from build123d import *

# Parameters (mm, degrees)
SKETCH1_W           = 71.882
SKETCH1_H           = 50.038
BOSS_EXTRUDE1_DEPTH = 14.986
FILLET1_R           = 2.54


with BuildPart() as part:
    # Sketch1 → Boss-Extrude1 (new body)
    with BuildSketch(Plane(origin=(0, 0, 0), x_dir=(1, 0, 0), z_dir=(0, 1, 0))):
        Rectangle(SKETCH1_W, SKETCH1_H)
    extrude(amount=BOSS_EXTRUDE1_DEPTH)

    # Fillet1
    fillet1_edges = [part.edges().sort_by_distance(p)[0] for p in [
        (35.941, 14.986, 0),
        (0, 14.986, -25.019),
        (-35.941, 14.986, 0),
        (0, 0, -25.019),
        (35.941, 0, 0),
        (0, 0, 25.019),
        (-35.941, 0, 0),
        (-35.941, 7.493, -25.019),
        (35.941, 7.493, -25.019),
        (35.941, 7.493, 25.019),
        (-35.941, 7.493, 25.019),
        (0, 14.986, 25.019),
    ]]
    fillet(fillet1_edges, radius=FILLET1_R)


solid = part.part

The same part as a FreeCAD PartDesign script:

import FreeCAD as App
import Part
import Sketcher
from FreeCAD import Vector
Q = App.Units.Quantity

doc = App.newDocument("Part")
body = doc.addObject("PartDesign::Body", "Body")

# Sketch on XZ plane
sketch1 = body.newObject("Sketcher::SketchObject", "Sketch")
sketch1.AttachmentSupport = (doc.getObject("XZ_Plane"), [""])
sketch1.MapMode = "FlatFace"
sketch1.addGeometry(Part.LineSegment(Vector(-36, -25, 0), Vector(-36, 25, 0)), False)
sketch1.addGeometry(Part.LineSegment(Vector(-36, 25, 0), Vector(36, 25, 0)), False)
sketch1.addGeometry(Part.LineSegment(Vector(36, 25, 0), Vector(36, -25, 0)), False)
sketch1.addGeometry(Part.LineSegment(Vector(36, -25, 0), Vector(-36, -25, 0)), False)
sketch1.addConstraint(Sketcher.Constraint("Coincident", 0, 2, 1, 1))
sketch1.addConstraint(Sketcher.Constraint("Coincident", 1, 2, 2, 1))
sketch1.addConstraint(Sketcher.Constraint("Coincident", 2, 2, 3, 1))
sketch1.addConstraint(Sketcher.Constraint("Coincident", 3, 2, 0, 1))
sketch1.addConstraint(Sketcher.Constraint("Vertical", 0))
sketch1.addConstraint(Sketcher.Constraint("Horizontal", 1))
sketch1.addConstraint(Sketcher.Constraint("Vertical", 2))
sketch1.addConstraint(Sketcher.Constraint("Horizontal", 3))
sketch1.addConstraint(Sketcher.Constraint("Symmetric", 0, 2, 2, 2, -1, 1))
sketch1.addConstraint(Sketcher.Constraint("DistanceX", 1, 1, 1, 2, Q("2.83 in")))
sketch1.addConstraint(Sketcher.Constraint("DistanceY", 0, 1, 0, 2, Q("1.97 in")))
pad1 = body.newObject("PartDesign::Pad", "Pad")
pad1.Profile = sketch1
pad1.Length = Q("0.59 in")
pad1.Reversed = True
doc.recompute()

fillet = body.newObject("PartDesign::Fillet", "Fillet")
fillet.Base = (pad1, ["Edge1"])
fillet.UseAllEdges = True
fillet.Radius = Q("0.1 in")

doc.recompute()
